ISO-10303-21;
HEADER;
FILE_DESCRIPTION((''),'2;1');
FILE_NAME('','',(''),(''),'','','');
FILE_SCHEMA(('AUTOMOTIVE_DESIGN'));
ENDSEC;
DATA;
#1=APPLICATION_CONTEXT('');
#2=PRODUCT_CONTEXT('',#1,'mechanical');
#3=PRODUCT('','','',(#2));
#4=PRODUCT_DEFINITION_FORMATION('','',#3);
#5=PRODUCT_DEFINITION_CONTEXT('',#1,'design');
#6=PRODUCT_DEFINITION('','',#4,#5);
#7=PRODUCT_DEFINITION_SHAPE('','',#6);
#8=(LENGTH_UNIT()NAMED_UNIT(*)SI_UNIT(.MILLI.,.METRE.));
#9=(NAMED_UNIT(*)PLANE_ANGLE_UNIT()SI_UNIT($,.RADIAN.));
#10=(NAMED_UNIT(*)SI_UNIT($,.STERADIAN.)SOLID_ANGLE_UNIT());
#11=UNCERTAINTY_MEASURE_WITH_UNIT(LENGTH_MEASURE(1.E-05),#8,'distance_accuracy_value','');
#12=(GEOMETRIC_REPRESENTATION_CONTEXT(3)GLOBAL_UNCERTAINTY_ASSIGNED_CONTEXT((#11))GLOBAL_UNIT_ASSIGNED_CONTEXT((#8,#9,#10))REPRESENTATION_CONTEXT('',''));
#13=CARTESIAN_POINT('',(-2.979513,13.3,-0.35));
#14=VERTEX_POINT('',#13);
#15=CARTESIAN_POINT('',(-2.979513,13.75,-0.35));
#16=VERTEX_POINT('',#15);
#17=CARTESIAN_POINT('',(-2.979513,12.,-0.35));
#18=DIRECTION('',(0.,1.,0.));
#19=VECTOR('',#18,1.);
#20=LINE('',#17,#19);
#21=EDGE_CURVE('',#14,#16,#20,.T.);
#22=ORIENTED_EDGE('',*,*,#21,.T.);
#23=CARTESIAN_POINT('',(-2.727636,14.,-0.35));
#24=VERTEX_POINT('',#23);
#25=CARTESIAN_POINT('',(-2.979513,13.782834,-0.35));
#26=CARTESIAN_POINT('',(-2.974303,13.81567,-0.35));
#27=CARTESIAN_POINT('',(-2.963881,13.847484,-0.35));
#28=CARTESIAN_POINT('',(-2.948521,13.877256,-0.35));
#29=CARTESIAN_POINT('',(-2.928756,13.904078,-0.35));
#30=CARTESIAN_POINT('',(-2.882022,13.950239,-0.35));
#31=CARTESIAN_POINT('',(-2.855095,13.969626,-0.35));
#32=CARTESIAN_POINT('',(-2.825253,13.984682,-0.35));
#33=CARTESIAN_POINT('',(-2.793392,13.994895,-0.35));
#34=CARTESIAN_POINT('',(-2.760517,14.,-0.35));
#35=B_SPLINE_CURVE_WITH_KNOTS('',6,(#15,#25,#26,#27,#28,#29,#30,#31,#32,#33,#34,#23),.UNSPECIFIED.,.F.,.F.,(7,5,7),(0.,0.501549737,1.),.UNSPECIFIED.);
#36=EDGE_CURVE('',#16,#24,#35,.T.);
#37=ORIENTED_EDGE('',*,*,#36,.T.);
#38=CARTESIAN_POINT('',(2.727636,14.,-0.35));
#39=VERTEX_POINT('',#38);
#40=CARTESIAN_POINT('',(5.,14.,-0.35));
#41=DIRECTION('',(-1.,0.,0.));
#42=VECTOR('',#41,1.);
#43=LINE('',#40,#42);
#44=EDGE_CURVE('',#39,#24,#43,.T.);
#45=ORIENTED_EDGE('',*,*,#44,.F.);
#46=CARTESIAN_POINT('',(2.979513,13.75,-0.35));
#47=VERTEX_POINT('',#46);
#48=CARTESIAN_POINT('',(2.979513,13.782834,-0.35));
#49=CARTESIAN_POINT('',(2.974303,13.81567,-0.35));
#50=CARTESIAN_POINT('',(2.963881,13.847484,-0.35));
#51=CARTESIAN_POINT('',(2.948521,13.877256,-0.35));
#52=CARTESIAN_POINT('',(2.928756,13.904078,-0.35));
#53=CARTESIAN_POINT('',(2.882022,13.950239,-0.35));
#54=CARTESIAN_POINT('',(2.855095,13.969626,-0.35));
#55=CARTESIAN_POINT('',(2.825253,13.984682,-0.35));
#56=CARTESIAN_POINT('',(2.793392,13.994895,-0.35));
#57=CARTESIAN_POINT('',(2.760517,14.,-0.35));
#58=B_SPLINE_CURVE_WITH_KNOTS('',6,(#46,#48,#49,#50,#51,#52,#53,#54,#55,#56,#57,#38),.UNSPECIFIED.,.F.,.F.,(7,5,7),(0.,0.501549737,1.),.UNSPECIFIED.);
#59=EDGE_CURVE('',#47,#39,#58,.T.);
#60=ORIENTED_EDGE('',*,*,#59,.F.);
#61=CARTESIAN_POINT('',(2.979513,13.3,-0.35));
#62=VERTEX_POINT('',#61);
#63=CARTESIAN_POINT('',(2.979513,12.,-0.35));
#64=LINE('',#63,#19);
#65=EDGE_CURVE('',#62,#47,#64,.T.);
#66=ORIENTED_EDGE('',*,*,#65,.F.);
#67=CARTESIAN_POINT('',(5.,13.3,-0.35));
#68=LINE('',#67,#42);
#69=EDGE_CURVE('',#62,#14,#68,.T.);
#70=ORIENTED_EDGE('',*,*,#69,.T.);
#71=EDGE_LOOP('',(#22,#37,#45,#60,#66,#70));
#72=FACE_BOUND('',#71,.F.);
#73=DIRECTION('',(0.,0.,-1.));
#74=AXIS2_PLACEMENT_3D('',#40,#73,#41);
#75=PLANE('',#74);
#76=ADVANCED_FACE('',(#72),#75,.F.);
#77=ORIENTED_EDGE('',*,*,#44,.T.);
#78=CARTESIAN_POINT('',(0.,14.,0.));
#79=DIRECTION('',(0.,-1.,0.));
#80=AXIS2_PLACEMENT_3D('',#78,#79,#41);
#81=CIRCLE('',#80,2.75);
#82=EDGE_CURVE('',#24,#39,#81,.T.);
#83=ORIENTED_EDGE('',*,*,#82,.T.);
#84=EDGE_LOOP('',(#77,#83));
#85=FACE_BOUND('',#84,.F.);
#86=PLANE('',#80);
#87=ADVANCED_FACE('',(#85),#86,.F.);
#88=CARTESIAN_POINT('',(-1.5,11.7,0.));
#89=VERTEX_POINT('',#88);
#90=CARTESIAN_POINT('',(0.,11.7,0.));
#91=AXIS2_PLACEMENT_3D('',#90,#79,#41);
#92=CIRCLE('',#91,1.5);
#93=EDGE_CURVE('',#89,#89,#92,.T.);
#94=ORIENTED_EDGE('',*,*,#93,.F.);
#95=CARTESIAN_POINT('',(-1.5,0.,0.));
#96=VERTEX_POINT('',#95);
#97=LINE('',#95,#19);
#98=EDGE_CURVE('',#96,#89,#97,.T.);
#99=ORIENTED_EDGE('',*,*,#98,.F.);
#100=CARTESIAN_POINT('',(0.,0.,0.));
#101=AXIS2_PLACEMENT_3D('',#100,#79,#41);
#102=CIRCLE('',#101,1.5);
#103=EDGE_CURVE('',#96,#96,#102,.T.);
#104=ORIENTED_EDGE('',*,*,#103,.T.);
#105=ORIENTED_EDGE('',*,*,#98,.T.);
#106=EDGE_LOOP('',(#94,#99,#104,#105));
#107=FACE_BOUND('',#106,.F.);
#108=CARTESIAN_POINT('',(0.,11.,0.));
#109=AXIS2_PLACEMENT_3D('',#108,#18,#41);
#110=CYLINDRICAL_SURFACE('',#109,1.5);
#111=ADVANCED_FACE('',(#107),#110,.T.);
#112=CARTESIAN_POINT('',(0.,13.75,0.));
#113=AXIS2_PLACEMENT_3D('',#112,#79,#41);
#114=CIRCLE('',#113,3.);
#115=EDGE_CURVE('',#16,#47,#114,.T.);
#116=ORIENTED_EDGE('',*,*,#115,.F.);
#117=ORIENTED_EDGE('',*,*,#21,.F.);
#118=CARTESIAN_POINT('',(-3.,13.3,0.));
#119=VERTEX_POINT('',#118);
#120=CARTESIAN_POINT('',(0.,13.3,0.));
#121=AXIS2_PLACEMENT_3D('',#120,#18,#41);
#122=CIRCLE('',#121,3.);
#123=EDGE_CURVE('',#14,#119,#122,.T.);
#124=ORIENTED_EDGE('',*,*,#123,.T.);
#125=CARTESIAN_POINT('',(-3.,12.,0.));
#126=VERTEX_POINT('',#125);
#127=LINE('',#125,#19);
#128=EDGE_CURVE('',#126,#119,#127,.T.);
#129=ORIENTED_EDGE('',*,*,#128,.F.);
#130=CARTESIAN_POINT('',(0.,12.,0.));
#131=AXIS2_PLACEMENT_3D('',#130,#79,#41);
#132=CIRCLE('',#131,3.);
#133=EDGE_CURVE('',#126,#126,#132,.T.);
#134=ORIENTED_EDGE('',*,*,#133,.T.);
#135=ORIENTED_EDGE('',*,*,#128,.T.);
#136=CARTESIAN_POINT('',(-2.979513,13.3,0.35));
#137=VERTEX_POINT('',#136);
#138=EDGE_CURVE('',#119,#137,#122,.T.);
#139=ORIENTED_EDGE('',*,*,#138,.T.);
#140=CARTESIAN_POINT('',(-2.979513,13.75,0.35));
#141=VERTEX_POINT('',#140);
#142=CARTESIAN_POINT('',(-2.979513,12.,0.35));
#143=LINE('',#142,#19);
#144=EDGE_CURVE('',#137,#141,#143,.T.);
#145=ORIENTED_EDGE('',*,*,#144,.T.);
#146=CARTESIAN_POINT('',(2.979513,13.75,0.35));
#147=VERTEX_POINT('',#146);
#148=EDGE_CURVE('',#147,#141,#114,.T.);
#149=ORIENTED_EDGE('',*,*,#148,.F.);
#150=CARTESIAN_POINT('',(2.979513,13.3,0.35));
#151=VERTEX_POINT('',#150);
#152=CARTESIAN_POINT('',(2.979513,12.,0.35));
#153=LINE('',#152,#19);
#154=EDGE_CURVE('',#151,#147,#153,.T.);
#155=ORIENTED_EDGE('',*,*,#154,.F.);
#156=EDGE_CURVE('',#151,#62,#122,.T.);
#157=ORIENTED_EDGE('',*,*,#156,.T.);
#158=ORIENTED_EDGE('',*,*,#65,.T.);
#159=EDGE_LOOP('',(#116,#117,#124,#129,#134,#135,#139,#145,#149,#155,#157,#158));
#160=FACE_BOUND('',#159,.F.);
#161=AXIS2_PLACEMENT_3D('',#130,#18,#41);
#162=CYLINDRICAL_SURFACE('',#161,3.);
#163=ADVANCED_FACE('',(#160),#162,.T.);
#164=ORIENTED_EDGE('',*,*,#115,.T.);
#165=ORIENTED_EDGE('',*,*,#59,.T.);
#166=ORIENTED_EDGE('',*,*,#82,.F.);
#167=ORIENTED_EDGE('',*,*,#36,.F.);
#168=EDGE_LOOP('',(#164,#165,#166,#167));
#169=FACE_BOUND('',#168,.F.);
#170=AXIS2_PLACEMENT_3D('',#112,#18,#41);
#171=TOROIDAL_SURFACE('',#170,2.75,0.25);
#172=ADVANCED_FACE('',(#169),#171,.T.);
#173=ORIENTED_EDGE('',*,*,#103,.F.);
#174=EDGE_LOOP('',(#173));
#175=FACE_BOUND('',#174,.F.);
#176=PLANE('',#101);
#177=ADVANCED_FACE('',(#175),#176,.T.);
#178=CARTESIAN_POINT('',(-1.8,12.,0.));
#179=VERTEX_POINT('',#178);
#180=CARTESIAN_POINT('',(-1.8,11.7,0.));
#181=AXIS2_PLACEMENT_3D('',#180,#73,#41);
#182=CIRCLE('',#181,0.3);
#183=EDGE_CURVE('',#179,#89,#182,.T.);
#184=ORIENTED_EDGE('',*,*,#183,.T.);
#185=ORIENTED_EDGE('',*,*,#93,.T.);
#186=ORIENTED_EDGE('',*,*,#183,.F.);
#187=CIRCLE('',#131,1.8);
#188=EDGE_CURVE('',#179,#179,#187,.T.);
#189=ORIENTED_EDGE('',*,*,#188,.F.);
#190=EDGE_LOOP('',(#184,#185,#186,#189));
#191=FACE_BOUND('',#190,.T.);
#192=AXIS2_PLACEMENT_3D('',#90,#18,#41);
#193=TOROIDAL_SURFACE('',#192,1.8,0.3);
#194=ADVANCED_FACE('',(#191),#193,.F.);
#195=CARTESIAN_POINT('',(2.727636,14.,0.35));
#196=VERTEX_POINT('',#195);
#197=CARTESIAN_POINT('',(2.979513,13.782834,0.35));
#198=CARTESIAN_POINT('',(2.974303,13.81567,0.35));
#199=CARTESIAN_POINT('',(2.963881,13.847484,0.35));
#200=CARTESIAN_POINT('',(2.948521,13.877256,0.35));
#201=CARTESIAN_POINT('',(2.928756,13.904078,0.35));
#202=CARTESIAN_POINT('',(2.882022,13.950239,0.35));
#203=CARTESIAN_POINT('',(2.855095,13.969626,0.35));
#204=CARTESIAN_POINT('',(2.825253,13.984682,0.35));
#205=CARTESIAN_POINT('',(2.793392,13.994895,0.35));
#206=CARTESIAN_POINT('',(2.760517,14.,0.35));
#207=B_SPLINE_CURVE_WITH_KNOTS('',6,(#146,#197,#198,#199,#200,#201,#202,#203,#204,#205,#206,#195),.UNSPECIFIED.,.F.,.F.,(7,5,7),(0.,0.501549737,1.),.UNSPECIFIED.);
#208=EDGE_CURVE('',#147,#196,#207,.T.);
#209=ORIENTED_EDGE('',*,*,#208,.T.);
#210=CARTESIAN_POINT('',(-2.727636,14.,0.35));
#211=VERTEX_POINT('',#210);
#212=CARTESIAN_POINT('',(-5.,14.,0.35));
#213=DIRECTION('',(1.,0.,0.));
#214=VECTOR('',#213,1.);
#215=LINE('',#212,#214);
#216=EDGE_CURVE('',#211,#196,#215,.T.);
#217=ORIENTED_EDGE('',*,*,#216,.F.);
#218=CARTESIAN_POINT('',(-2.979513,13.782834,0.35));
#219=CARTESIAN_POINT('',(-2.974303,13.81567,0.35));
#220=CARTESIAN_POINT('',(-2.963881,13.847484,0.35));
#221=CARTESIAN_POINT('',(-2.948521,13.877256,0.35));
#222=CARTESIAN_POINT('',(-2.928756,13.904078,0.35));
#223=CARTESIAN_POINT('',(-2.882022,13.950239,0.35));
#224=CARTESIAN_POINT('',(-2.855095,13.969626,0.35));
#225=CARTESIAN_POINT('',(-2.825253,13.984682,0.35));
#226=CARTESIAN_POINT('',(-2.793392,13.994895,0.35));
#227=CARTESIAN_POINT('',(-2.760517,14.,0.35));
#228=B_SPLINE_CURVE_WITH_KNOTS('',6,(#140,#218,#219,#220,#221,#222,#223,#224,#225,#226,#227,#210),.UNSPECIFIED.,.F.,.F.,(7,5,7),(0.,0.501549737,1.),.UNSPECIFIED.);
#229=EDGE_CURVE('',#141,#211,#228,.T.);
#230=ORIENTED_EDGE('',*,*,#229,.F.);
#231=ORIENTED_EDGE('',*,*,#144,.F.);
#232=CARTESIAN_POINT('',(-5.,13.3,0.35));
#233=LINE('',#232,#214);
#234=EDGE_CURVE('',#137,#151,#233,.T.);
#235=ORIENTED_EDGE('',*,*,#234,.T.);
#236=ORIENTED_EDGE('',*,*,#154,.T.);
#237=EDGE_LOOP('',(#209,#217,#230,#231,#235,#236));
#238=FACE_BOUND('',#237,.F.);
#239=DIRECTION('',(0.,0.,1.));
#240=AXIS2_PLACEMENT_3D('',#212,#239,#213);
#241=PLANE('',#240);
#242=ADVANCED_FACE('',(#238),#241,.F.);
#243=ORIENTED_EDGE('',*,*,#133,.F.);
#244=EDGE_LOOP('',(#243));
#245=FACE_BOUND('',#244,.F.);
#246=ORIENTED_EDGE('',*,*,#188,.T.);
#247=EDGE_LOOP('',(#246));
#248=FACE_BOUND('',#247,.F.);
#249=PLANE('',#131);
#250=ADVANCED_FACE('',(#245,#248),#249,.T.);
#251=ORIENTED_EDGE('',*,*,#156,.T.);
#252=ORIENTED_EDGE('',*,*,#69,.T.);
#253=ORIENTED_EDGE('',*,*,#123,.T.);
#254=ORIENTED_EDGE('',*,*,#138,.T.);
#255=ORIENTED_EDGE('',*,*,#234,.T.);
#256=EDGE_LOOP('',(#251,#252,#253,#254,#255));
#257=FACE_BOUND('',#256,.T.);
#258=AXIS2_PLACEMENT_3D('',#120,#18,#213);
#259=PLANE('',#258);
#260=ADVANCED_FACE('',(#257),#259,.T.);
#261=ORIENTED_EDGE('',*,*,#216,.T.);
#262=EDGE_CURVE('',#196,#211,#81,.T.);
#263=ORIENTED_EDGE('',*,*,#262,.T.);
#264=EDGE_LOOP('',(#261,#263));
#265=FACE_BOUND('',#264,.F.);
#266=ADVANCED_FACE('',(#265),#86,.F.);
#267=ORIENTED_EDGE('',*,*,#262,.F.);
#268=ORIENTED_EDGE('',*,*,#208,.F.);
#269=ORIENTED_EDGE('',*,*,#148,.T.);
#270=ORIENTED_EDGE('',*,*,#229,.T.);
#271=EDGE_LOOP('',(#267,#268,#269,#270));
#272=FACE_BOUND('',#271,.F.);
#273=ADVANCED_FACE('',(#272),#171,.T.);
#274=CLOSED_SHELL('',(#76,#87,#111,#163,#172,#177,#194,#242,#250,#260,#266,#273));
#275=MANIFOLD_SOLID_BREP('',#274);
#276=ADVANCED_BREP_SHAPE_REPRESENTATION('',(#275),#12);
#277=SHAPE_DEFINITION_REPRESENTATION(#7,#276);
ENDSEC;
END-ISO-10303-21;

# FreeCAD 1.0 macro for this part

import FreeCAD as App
import Part
import Sketcher


def edges_at(feature, points):
    """Names of the edges that pass closest to the given points."""
    edges = feature.Shape.Edges
    near = lambda p: min(range(len(edges)), key=lambda i: edges[i].distToShape(Part.Vertex(*p))[0])
    return sorted({f"Edge{near(p) + 1}" for p in points})


def add_polygon(sketch, points):
    """Adds a closed chain of lines whose ends are joined by coincident constraints."""
    first, n = sketch.GeometryCount, len(points)
    for a, b in zip(points, points[1:] + points[:1]):
        sketch.addGeometry(Part.LineSegment(App.Vector(*a, 0), App.Vector(*b, 0)), False)
    for i in range(n):
        sketch.addConstraint(Sketcher.Constraint("Coincident", first + i, 2, first + (i + 1) % n, 1))

doc = App.newDocument("Part")
body = doc.addObject("PartDesign::Body", "Body")

sketch1 = body.newObject("Sketcher::SketchObject", "Sketch")
sketch1.AttachmentSupport = (doc.getObject("XY_Plane"), [""])
sketch1.MapMode = "FlatFace"
add_polygon(sketch1, [(-1.5, 0), (0, 0), (0, 14), (-3, 14), (-3, 12), (-1.5, 12)])
sketch1.addConstraint([
    Sketcher.Constraint("Horizontal", 0),
    Sketcher.Constraint("Vertical", 1),
    Sketcher.Constraint("Horizontal", 2),
    Sketcher.Constraint("Vertical", 3),
    Sketcher.Constraint("Horizontal", 4),
    Sketcher.Constraint("Vertical", 5),
    Sketcher.Constraint("Coincident", 0, 2, -1, 1),
    Sketcher.Constraint("Equal", 0, 4),
    Sketcher.Constraint("DistanceX", 2, 2, 2, 1, 3.0),
    Sketcher.Constraint("DistanceY", 1, 1, 1, 2, 14.0),
    Sketcher.Constraint("DistanceY", 3, 2, 3, 1, 2.0),
])
revolution = body.newObject("PartDesign::Revolution", "Revolution")
revolution.Profile = sketch1
revolution.ReferenceAxis = (sketch1, ["V_Axis"])
revolution.Angle = 360
doc.recompute()

fillet = body.newObject("PartDesign::Fillet", "Fillet")
fillet.Base = (revolution, edges_at(revolution, [(3, 14, 0)]))
fillet.Radius = 0.25

sketch2 = body.newObject("Sketcher::SketchObject", "Sketch001")
sketch2.AttachmentSupport = (doc.getObject("XZ_Plane"), [""])
sketch2.MapMode = "FlatFace"
sketch2.AttachmentOffset = App.Placement(App.Vector(0, 0, -14), App.Rotation())
add_polygon(sketch2, [(5, 0.3), (5, -0.3), (-5, -0.3), (-5, 0.3)])
sketch2.addConstraint([
    Sketcher.Constraint("Vertical", 0),
    Sketcher.Constraint("Horizontal", 1),
    Sketcher.Constraint("Vertical", 2),
    Sketcher.Constraint("Horizontal", 3),
    Sketcher.Constraint("Symmetric", 0, 2, 2, 2, -1, 1),
    Sketcher.Constraint("DistanceX", 1, 2, 1, 1, 10.0),
    Sketcher.Constraint("DistanceY", 0, 2, 0, 1, 0.7),
])
pocket1 = body.newObject("PartDesign::Pocket", "Pocket")
pocket1.Profile = sketch2
pocket1.Length = 0.7
pocket1.Reversed = True
doc.recompute()

fillet2 = body.newObject("PartDesign::Fillet", "Fillet001")
fillet2.Base = (pocket1, edges_at(pocket1, [(1.5, 12, 0)]))
fillet2.Radius = 0.3

doc.recompute()
